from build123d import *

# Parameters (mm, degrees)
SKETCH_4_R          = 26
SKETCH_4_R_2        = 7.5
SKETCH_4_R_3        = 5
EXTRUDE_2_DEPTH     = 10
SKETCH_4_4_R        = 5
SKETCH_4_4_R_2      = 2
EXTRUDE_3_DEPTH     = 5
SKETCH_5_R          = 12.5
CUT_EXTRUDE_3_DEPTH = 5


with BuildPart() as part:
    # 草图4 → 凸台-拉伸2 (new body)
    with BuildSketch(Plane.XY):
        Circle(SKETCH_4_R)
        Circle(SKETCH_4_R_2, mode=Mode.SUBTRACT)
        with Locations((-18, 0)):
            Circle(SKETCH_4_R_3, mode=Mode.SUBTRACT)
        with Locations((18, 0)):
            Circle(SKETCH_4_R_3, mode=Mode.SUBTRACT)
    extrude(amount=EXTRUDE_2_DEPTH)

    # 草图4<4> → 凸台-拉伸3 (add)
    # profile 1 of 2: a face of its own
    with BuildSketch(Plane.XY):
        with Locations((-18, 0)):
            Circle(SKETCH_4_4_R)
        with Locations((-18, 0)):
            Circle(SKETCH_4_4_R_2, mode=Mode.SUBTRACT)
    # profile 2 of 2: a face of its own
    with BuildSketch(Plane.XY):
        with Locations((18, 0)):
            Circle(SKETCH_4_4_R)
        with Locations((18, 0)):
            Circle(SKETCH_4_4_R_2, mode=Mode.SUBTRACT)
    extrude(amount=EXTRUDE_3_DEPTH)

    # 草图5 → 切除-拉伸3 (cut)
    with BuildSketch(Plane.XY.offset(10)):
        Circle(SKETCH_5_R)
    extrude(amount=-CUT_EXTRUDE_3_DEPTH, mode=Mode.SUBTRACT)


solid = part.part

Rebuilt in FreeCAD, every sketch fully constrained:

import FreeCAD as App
import Part
import Sketcher

doc = App.newDocument("Part")
body = doc.addObject("PartDesign::Body", "Body")

sketch1 = body.newObject("Sketcher::SketchObject", "Sketch")
sketch1.AttachmentSupport = (doc.getObject("XY_Plane"), [""])
sketch1.MapMode = "FlatFace"
sketch1.addGeometry([
    Part.Circle(App.Vector(0, 0, 0), App.Vector(0, 0, 1), 26),
    Part.Circle(App.Vector(-18, 0, 0), App.Vector(0, 0, 1), 5),
    Part.Circle(App.Vector(0, 0, 0), App.Vector(0, 0, 1), 8),
    Part.Circle(App.Vector(18, 0, 0), App.Vector(0, 0, 1), 5),
], False)
sketch1.addConstraint([
    Sketcher.Constraint("Coincident", 0, 3, -1, 1),
    Sketcher.Constraint("Coincident", 2, 3, -1, 1),
    Sketcher.Constraint("Equal", 1, 3),
    Sketcher.Constraint("Symmetric", 1, 3, 3, 3, -1, 1),
    Sketcher.Constraint("PointOnObject", 1, 3, -1),
    Sketcher.Constraint("Diameter", 0, 52.0),
    Sketcher.Constraint("Diameter", 1, 10.0),
    Sketcher.Constraint("Diameter", 2, 15.0),
    Sketcher.Constraint("DistanceX", 1, 3, -1, 1, 18.0),
])
pad1 = body.newObject("PartDesign::Pad", "Pad")
pad1.Profile = sketch1
pad1.Length = 10

sketch2 = body.newObject("Sketcher::SketchObject", "Sketch001")
sketch2.AttachmentSupport = (doc.getObject("XY_Plane"), [""])
sketch2.MapMode = "FlatFace"
sketch2.addGeometry([
    Part.Circle(App.Vector(-18, 0, 0), App.Vector(0, 0, 1), 5),
    Part.Circle(App.Vector(-18, 0, 0), App.Vector(0, 0, 1), 2),
    Part.Circle(App.Vector(18, 0, 0), App.Vector(0, 0, 1), 5),
    Part.Circle(App.Vector(18, 0, 0), App.Vector(0, 0, 1), 2),
], False)
sketch2.addConstraint([
    Sketcher.Constraint("Coincident", 1, 3, 0, 3),
    Sketcher.Constraint("Coincident", 3, 3, 2, 3),
    Sketcher.Constraint("Equal", 0, 2),
    Sketcher.Constraint("Equal", 1, 3),
    Sketcher.Constraint("Symmetric", 0, 3, 2, 3, -1, 1),
    Sketcher.Constraint("PointOnObject", 0, 3, -1),
    Sketcher.Constraint("Diameter", 0, 10.0),
    Sketcher.Constraint("Diameter", 1, 4.0),
    Sketcher.Constraint("DistanceX", 0, 3, -1, 1, 18.0),
])
pad2 = body.newObject("PartDesign::Pad", "Pad001")
pad2.Profile = sketch2
pad2.Length = 5

sketch3 = body.newObject("Sketcher::SketchObject", "Sketch002")
sketch3.AttachmentSupport = (doc.getObject("XY_Plane"), [""])
sketch3.MapMode = "FlatFace"
sketch3.AttachmentOffset = App.Placement(App.Vector(0, 0, 10), App.Rotation())
sketch3.addGeometry(Part.Circle(App.Vector(0, 0, 0), App.Vector(0, 0, 1), 12), False)
sketch3.addConstraint([
    Sketcher.Constraint("Coincident", 0, 3, -1, 1),
    Sketcher.Constraint("Diameter", 0, 25.0),
])
pocket1 = body.newObject("PartDesign::Pocket", "Pocket")
pocket1.Profile = sketch3
pocket1.Length = 5

doc.recompute()
